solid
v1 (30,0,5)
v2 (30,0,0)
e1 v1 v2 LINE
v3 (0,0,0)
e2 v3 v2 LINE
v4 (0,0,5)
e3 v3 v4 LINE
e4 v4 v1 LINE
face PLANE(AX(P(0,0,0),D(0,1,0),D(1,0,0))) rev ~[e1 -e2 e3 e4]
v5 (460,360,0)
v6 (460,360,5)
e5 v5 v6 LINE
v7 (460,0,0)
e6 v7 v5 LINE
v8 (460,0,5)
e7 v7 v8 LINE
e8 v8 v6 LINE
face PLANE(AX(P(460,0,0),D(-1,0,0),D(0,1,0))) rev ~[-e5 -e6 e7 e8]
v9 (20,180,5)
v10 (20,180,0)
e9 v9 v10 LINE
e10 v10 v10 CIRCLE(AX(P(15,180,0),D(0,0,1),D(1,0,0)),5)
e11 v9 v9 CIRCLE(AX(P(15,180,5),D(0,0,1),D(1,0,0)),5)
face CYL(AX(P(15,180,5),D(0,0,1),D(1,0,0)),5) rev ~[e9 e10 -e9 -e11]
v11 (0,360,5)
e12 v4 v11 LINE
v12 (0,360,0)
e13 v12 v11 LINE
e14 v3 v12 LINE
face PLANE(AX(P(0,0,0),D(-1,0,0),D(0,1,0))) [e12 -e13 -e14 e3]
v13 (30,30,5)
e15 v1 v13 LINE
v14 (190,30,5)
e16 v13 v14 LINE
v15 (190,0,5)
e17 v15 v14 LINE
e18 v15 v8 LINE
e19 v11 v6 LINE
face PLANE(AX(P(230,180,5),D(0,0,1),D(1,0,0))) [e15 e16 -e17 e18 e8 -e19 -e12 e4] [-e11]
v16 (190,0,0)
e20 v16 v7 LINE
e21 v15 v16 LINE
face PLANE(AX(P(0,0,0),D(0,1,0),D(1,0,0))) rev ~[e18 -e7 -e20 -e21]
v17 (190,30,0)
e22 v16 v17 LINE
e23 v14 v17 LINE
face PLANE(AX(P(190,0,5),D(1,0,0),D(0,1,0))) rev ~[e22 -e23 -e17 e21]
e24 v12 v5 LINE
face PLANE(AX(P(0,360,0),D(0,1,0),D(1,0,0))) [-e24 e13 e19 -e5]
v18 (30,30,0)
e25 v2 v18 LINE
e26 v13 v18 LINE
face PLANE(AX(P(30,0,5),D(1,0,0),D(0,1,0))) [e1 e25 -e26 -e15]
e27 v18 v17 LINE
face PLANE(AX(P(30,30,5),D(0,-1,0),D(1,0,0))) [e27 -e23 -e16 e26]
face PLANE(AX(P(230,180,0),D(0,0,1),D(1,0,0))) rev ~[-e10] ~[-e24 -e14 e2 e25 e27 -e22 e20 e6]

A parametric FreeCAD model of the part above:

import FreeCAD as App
import Part
import Sketcher

V = App.Vector
Q = App.Units.Quantity

doc = App.newDocument("Part")
body = doc.addObject("PartDesign::Body", "Body")

# Sketch on XY plane
sketch1 = body.newObject("Sketcher::SketchObject", "Sketch")
sketch1.AttachmentSupport = (doc.getObject("XY_Plane"), [""])
sketch1.MapMode = "FlatFace"
sketch1.addGeometry([
    Part.LineSegment(V(0, 360, 0), V(0, 0, 0)),
    Part.LineSegment(V(0, 0, 0), V(460, 0, 0)),
    Part.LineSegment(V(460, 0, 0), V(460, 360, 0)),
    Part.LineSegment(V(460, 360, 0), V(0, 360, 0)),
], False)
sketch1.addConstraint([
    Sketcher.Constraint("Coincident", 0, 2, 1, 1),
    Sketcher.Constraint("Coincident", 1, 2, 2, 1),
    Sketcher.Constraint("Coincident", 2, 2, 3, 1),
    Sketcher.Constraint("Coincident", 3, 2, 0, 1),
    Sketcher.Constraint("Vertical", 0),
    Sketcher.Constraint("Horizontal", 1),
    Sketcher.Constraint("Vertical", 2),
    Sketcher.Constraint("Horizontal", 3),
    Sketcher.Constraint("Coincident", 0, 2, -1, 1),
    Sketcher.Constraint("DistanceX", 1, 1, 1, 2, Q("460 mm")),
    Sketcher.Constraint("DistanceY", 0, 2, 0, 1, Q("360 mm")),
])
pad1 = body.newObject("PartDesign::Pad", "Pad")
pad1.Profile = sketch1
pad1.Length = 5

# Sketch on XY plane
sketch2 = body.newObject("Sketcher::SketchObject", "Sketch001")
sketch2.AttachmentSupport = (doc.getObject("XY_Plane"), [""])
sketch2.MapMode = "FlatFace"
sketch2.AttachmentOffset = App.Placement(V(0, 0, 5), App.Rotation())
sketch2.addGeometry(Part.Circle(V(15, 180, 0), V(0, 0, 1), 5), False)
sketch2.addConstraint([
    Sketcher.Constraint("Diameter", 0, Q("10 mm")),
    Sketcher.Constraint("DistanceX", -1, 1, 0, 3, Q("15 mm")),
    Sketcher.Constraint("DistanceY", -1, 1, 0, 3, Q("180 mm")),
])
pocket1 = body.newObject("PartDesign::Pocket", "Pocket")
pocket1.Profile = sketch2
pocket1.Type = "ThroughAll"

# Sketch on XY plane
sketch3 = body.newObject("Sketcher::SketchObject", "Sketch002")
sketch3.AttachmentSupport = (doc.getObject("XY_Plane"), [""])
sketch3.MapMode = "FlatFace"
sketch3.AttachmentOffset = App.Placement(V(0, 0, 5), App.Rotation())
sketch3.addGeometry([
    Part.LineSegment(V(30, 30, 0), V(30, 0, 0)),
    Part.LineSegment(V(30, 0, 0), V(190, 0, 0)),
    Part.LineSegment(V(190, 0, 0), V(190, 30, 0)),
    Part.LineSegment(V(190, 30, 0), V(30, 30, 0)),
], False)
sketch3.addConstraint([
    Sketcher.Constraint("Coincident", 0, 2, 1, 1),
    Sketcher.Constraint("Coincident", 1, 2, 2, 1),
    Sketcher.Constraint("Coincident", 2, 2, 3, 1),
    Sketcher.Constraint("Coincident", 3, 2, 0, 1),
    Sketcher.Constraint("Vertical", 0),
    Sketcher.Constraint("Horizontal", 1),
    Sketcher.Constraint("Vertical", 2),
    Sketcher.Constraint("Horizontal", 3),
    Sketcher.Constraint("PointOnObject", 0, 2, -1),
    Sketcher.Constraint("DistanceX", 1, 1, 1, 2, Q("160 mm")),
    Sketcher.Constraint("DistanceY", 0, 2, 0, 1, Q("30 mm")),
    Sketcher.Constraint("DistanceX", -1, 1, 0, 2, Q("30 mm")),
])
pocket2 = body.newObject("PartDesign::Pocket", "Pocket001")
pocket2.Profile = sketch3
pocket2.Type = "ThroughAll"

doc.recompute()
